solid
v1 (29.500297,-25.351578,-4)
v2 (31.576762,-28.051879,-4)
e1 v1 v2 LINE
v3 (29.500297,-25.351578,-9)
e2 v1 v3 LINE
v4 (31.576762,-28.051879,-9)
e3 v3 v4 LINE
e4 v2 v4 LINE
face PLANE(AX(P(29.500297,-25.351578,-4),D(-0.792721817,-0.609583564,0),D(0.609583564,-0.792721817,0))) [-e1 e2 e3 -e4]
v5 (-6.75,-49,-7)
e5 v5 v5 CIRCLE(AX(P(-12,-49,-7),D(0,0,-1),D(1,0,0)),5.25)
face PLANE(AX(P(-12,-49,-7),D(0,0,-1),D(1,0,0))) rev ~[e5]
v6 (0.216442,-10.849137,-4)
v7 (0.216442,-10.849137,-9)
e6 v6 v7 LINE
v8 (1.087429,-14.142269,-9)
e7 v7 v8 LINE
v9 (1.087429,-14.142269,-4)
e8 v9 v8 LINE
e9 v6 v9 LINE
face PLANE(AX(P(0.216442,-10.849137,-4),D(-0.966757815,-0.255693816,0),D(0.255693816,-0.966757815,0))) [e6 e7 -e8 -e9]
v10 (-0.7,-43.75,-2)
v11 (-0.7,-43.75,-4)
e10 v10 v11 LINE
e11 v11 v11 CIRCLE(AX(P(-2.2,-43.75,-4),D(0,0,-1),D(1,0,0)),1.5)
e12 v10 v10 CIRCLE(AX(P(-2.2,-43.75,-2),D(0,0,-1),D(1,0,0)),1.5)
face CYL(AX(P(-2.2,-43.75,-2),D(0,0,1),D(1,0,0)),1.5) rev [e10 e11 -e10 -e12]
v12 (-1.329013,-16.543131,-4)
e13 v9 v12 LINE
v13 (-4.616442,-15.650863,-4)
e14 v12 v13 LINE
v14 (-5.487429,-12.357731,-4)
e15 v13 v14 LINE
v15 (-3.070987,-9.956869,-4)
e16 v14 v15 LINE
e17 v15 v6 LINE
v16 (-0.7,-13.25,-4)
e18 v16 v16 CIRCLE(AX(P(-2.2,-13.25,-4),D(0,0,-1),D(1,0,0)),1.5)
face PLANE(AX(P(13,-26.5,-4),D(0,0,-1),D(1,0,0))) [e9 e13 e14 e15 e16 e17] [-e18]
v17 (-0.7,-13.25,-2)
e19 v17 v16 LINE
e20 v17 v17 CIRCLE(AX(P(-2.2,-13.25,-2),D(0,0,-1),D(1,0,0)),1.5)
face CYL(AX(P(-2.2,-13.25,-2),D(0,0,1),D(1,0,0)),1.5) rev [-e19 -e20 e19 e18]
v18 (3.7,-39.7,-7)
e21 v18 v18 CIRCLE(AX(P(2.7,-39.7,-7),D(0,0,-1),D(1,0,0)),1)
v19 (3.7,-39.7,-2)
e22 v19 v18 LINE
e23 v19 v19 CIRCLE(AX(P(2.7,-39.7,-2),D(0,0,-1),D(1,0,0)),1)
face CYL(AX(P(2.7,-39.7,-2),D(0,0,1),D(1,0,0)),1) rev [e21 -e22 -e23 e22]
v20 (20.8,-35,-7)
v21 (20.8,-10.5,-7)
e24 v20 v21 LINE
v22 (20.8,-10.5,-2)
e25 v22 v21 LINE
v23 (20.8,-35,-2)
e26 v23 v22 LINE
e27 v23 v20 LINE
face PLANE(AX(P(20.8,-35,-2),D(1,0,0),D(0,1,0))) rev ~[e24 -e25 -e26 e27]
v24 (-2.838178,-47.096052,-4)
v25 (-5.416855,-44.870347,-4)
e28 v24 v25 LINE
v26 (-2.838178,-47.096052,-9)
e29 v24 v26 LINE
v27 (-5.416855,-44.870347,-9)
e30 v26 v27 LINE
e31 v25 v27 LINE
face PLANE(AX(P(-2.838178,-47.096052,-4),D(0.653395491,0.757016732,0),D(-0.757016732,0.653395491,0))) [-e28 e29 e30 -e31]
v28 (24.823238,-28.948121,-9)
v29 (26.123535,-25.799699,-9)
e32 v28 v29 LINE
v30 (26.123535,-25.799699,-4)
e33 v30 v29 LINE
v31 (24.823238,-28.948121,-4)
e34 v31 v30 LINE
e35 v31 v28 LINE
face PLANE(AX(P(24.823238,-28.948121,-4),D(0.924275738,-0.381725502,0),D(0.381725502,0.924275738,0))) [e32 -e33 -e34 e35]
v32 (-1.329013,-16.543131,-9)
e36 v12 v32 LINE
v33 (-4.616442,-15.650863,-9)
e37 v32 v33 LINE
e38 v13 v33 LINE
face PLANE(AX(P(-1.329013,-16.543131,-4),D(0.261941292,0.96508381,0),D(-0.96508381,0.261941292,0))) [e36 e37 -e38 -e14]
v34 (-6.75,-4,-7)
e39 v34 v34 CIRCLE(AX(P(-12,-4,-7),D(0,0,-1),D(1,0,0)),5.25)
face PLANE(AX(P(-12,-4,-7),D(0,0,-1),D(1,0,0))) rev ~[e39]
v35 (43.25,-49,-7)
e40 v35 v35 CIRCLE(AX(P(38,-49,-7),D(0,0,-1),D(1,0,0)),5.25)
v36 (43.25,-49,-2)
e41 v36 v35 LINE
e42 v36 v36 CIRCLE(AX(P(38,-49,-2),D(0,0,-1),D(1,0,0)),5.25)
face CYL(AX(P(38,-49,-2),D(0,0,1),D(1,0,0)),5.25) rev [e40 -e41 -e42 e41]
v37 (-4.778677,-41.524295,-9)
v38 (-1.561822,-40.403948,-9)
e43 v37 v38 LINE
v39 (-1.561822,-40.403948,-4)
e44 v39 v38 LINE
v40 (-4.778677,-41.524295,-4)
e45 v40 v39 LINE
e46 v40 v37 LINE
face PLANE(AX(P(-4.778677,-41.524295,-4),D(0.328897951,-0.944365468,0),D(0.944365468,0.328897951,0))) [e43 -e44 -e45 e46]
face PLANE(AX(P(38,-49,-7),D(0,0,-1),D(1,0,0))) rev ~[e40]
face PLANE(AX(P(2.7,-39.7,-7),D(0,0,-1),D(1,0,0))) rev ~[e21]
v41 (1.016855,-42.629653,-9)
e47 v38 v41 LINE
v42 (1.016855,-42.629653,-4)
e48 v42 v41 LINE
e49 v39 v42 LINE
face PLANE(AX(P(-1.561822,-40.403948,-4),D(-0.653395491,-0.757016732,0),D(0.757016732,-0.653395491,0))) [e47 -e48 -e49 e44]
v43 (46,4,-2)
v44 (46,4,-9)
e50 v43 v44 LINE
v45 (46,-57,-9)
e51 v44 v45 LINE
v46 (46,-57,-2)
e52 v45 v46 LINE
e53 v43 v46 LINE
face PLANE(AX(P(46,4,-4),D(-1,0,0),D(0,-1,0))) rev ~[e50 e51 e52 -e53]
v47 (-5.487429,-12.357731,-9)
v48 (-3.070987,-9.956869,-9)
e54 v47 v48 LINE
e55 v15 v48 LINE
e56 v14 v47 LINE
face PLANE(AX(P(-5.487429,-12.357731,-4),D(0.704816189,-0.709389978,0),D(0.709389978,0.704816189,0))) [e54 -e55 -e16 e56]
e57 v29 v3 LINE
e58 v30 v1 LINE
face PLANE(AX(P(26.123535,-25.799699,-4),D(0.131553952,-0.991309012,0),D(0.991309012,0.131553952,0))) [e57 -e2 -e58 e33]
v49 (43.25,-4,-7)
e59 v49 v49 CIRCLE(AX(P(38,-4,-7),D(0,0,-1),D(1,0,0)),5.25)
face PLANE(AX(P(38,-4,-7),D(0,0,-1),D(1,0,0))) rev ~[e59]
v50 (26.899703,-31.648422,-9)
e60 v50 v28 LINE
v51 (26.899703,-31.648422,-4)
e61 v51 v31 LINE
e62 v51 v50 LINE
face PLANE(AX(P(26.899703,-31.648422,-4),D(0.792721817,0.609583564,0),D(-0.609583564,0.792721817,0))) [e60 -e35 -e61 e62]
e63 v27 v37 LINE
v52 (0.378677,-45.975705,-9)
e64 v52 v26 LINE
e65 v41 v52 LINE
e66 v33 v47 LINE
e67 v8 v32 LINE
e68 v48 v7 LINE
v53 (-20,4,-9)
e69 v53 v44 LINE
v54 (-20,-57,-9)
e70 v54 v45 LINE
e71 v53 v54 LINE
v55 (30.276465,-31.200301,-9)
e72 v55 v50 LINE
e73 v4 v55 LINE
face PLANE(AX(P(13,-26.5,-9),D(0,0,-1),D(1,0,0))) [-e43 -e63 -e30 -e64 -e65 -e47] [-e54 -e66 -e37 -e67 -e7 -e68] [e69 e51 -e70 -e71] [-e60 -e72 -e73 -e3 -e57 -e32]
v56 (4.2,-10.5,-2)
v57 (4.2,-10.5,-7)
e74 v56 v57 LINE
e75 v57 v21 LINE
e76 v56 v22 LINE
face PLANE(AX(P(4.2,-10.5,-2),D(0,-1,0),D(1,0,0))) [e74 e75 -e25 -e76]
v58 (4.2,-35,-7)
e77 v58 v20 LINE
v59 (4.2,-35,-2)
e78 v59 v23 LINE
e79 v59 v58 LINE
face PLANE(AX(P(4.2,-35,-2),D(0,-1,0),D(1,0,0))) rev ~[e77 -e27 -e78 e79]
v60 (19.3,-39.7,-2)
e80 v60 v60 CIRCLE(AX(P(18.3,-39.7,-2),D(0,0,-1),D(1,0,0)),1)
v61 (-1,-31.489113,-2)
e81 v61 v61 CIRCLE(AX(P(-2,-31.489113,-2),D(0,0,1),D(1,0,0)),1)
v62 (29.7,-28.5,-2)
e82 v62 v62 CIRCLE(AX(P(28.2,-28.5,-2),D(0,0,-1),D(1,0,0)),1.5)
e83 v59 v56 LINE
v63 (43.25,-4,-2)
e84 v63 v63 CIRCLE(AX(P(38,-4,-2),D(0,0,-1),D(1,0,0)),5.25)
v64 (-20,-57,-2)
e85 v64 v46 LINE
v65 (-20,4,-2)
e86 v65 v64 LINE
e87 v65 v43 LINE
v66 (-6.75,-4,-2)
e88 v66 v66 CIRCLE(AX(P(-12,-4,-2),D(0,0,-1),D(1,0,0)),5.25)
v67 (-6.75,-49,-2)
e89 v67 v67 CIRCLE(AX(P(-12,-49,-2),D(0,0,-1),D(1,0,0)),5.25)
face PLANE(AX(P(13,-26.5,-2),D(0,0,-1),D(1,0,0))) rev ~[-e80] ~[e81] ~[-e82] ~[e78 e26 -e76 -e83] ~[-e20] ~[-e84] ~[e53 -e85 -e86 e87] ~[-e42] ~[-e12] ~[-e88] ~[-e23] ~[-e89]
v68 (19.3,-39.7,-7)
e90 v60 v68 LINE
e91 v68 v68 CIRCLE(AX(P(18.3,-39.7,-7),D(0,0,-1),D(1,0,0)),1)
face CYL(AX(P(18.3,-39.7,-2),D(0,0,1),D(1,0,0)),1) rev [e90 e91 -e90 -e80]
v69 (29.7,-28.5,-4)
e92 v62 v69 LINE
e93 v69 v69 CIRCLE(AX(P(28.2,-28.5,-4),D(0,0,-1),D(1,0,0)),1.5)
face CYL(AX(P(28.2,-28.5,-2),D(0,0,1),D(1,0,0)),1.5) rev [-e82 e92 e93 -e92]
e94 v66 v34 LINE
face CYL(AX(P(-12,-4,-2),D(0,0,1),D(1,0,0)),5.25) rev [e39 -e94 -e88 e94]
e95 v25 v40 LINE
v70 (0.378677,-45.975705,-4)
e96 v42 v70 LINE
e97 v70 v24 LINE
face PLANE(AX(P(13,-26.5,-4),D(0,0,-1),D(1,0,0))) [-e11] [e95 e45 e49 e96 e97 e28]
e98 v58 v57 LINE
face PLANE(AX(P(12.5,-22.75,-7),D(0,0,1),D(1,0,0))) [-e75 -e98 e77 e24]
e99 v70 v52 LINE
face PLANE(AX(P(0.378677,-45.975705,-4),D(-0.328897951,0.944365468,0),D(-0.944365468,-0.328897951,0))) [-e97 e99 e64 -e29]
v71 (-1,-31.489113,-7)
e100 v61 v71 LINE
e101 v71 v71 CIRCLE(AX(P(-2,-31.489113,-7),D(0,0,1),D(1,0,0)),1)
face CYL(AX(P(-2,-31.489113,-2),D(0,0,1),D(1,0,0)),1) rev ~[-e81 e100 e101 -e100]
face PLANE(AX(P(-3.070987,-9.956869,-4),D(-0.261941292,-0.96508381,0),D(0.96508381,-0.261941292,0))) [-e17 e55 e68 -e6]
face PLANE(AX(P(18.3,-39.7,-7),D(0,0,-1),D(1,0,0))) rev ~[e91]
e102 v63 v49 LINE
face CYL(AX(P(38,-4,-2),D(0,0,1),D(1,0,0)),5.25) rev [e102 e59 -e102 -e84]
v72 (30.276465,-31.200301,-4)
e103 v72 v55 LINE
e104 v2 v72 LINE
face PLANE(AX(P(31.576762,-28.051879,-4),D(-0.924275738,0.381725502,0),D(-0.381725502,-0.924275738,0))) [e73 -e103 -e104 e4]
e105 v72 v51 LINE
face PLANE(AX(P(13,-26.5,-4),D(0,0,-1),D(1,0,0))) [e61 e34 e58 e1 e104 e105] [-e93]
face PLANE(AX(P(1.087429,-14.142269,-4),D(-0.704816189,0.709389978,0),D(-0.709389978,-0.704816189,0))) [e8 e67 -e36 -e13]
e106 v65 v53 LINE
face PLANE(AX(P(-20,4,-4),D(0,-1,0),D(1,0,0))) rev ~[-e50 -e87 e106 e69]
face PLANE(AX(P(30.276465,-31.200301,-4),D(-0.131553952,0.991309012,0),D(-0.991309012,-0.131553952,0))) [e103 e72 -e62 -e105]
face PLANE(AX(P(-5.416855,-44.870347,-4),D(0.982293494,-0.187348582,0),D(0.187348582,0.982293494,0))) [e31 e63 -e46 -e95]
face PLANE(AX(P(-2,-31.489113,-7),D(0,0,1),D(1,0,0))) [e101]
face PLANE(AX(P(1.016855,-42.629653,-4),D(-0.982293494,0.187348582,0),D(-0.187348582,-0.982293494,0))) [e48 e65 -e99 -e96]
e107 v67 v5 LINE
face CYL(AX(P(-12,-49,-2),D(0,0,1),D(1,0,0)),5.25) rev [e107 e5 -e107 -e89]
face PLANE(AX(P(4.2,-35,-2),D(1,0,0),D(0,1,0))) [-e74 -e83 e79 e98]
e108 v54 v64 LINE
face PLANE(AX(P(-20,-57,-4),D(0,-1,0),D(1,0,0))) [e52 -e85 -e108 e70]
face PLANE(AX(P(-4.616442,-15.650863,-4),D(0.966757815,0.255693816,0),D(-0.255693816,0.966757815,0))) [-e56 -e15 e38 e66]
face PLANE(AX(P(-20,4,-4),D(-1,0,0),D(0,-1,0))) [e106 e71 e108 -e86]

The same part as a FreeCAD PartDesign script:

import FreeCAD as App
import Part
import Sketcher
from FreeCAD import Vector


def add_polygon(sketch, points):
    """Adds a closed chain of lines whose ends are joined by coincident constraints."""
    first, n = sketch.GeometryCount, len(points)
    for a, b in zip(points, points[1:] + points[:1]):
        sketch.addGeometry(Part.LineSegment(App.Vector(*a, 0), App.Vector(*b, 0)), False)
    for i in range(n):
        sketch.addConstraint(Sketcher.Constraint("Coincident", first + i, 2, first + (i + 1) % n, 1))

doc = App.newDocument("Part")
body = doc.addObject("PartDesign::Body", "Body")

sketch1 = body.newObject("Sketcher::SketchObject", "Sketch")
sketch1.AttachmentSupport = (doc.getObject("XY_Plane"), [""])
sketch1.MapMode = "FlatFace"
sketch1.AttachmentOffset = App.Placement(Vector(0, 0, -2), App.Rotation())
add_polygon(sketch1, [(-20, -57), (-20, 4), (46, 4), (46, -57)])
sketch1.addGeometry(Part.Circle(Vector(-12, -4, 0), Vector(0, 0, 1), 5.2), False)
sketch1.addGeometry(Part.Circle(Vector(-2.2, -13.2, 0), Vector(0, 0, 1), 1.5), False)
sketch1.addGeometry(Part.Circle(Vector(38, -4, 0), Vector(0, 0, 1), 5.2), False)
sketch1.addGeometry(Part.Circle(Vector(2.7, -39.7, 0), Vector(0, 0, 1), 1), False)
sketch1.addGeometry(Part.Circle(Vector(-2.2, -43.8, 0), Vector(0, 0, 1), 1.5), False)
sketch1.addGeometry(Part.Circle(Vector(-12, -49, 0), Vector(0, 0, 1), 5.2), False)
sketch1.addGeometry(Part.Circle(Vector(18.3, -39.7, 0), Vector(0, 0, 1), 1), False)
sketch1.addGeometry(Part.Circle(Vector(28.2, -28.5, 0), Vector(0, 0, 1), 1.5), False)
sketch1.addGeometry(Part.Circle(Vector(38, -49, 0), Vector(0, 0, 1), 5.2), False)
sketch1.addConstraint([
    Sketcher.Constraint("Vertical", 0),
    Sketcher.Constraint("Horizontal", 1),
    Sketcher.Constraint("Vertical", 2),
    Sketcher.Constraint("Horizontal", 3),
    Sketcher.Constraint("Equal", 4, 6),
    Sketcher.Constraint("Equal", 5, 8),
    Sketcher.Constraint("Equal", 6, 9),
    Sketcher.Constraint("Equal", 7, 10),
    Sketcher.Constraint("Equal", 8, 11),
    Sketcher.Constraint("Equal", 9, 12),
    Sketcher.Constraint("Horizontal", 4, 3, 6, 3),
    Sketcher.Constraint("Horizontal", 7, 3, 10, 3),
    Sketcher.Constraint("Horizontal", 9, 3, 12, 3),
    Sketcher.Constraint("Vertical", 5, 3, 8, 3),
    Sketcher.Constraint("Vertical", 4, 3, 9, 3),
    Sketcher.Constraint("Vertical", 6, 3, 12, 3),
    Sketcher.Constraint("Diameter", 5, 3.0),
    Sketcher.Constraint("Diameter", 7, 2.0),
    Sketcher.Constraint("Diameter", 4, 10.5),
    Sketcher.Constraint("DistanceX", 1, 1, 1, 2, 66.0),
    Sketcher.Constraint("DistanceY", 0, 1, 0, 2, 61.0),
    Sketcher.Constraint("DistanceX", 4, 3, -1, 1, 12.0),
    Sketcher.Constraint("DistanceY", 4, 3, -1, 1, 4.0),
    Sketcher.Constraint("DistanceX", -1, 1, 6, 3, 38.0),
    Sketcher.Constraint("DistanceY", 9, 3, -1, 1, 49.0),
    Sketcher.Constraint("DistanceX", 0, 2, -1, 1, 20.0),
    Sketcher.Constraint("DistanceY", -1, 1, 0, 2, 4.0),
    Sketcher.Constraint("DistanceX", 5, 3, -1, 1, 2.2),
    Sketcher.Constraint("DistanceX", -1, 1, 7, 3, 2.7),
    Sketcher.Constraint("DistanceY", 7, 3, -1, 1, 39.7),
    Sketcher.Constraint("DistanceX", -1, 1, 10, 3, 18.3),
    Sketcher.Constraint("DistanceX", -1, 1, 11, 3, 28.2),
    Sketcher.Constraint("DistanceY", 11, 3, -1, 1, 28.5),
    Sketcher.Constraint("DistanceY", 8, 3, 5, 3, 30.5),
    Sketcher.Constraint("DistanceY", 5, 3, -1, 1, 13.25),
])
pad1 = body.newObject("PartDesign::Pad", "Pad")
pad1.Profile = sketch1
pad1.Length = 2
pad1.Reversed = True

sketch2 = body.newObject("Sketcher::SketchObject", "Sketch001")
sketch2.AttachmentSupport = (doc.getObject("XY_Plane"), [""])
sketch2.MapMode = "FlatFace"
sketch2.AttachmentOffset = App.Placement(Vector(0, 0, -4), App.Rotation())
add_polygon(sketch2, [(-20, -57), (-20, 4), (46, 4), (46, -57)])
add_polygon(sketch2, [(-1.3, -16.5), (1.1, -14.1), (0.2, -10.8), (-3.1, -10), (-5.5, -12.4), (-4.6, -15.7)])
add_polygon(sketch2, [(31.6, -28.1), (29.5, -25.4), (26.1, -25.8), (24.8, -28.9), (26.9, -31.6), (30.3, -31.2)])
add_polygon(sketch2, [(-5.4, -44.9), (-2.8, -47.1), (0.4, -46), (1, -42.6), (-1.6, -40.4), (-4.8, -41.5)])
sketch2.addConstraint([
    Sketcher.Constraint("Vertical", 0),
    Sketcher.Constraint("Horizontal", 1),
    Sketcher.Constraint("Vertical", 2),
    Sketcher.Constraint("Horizontal", 3),
    Sketcher.Constraint("Parallel", 4, 7),
    Sketcher.Constraint("Parallel", 5, 8),
    Sketcher.Constraint("Parallel", 6, 9),
    Sketcher.Constraint("Parallel", 10, 13),
    Sketcher.Constraint("Parallel", 11, 14),
    Sketcher.Constraint("Parallel", 12, 15),
    Sketcher.Constraint("Parallel", 16, 19),
    Sketcher.Constraint("Parallel", 17, 20),
    Sketcher.Constraint("Parallel", 18, 21),
    Sketcher.Constraint("Equal", 4, 5),
    Sketcher.Constraint("Equal", 5, 6),
    Sketcher.Constraint("Equal", 6, 7),
    Sketcher.Constraint("Equal", 9, 10),
    Sketcher.Constraint("Equal", 10, 11),
    Sketcher.Constraint("Equal", 11, 12),
    Sketcher.Constraint("Equal", 12, 13),
    Sketcher.Constraint("Equal", 15, 16),
    Sketcher.Constraint("Equal", 16, 17),
    Sketcher.Constraint("Equal", 17, 18),
    Sketcher.Constraint("Equal", 18, 19),
    Sketcher.Constraint("DistanceX", 1, 1, 1, 2, 66.0),
    Sketcher.Constraint("DistanceY", 0, 1, 0, 2, 61.0),
    Sketcher.Constraint("DistanceX", 0, 2, -1, 1, 20.0),
    Sketcher.Constraint("DistanceY", -1, 1, 0, 2, 4.0),
    Sketcher.Constraint("DistanceY", 11, 2, -1, 1, 25.799699),
    Sketcher.Constraint("DistanceY", 14, 2, -1, 1, 31.200301),
    Sketcher.Constraint("DistanceY", 4, 2, 6, 2, 4.1854),
    Sketcher.Constraint("DistanceY", 13, 2, 12, 2, 2.700301),
    Sketcher.Constraint("DistanceY", 16, 2, 18, 2, 4.466399),
    Sketcher.Constraint("DistanceX", 19, 2, 17, 2, 1.940499),
    Sketcher.Constraint("DistanceX", -1, 1, 4, 2, 1.087429),
    Sketcher.Constraint("DistanceY", 4, 2, -1, 1, 14.142269),
    Sketcher.Constraint("DistanceX", 7, 2, -1, 1, 5.487429),
    Sketcher.Constraint("DistanceY", 7, 2, -1, 1, 12.357731),
    Sketcher.Constraint("DistanceY", 10, 2, -1, 1, 25.351578),
    Sketcher.Constraint("DistanceX", -1, 1, 12, 2, 24.823238),
    Sketcher.Constraint("DistanceX", -1, 1, 15, 2, 31.576762),
    Sketcher.Constraint("DistanceX", 16, 2, -1, 1, 2.838178),
    Sketcher.Constraint("DistanceY", 16, 2, 9, 2, 30.552921),
    Sketcher.Constraint("DistanceX", 9, 2, 17, 2, 1.70769),
])
pad2 = body.newObject("PartDesign::Pad", "Pad001")
pad2.Profile = sketch2
pad2.Length = 5
pad2.Reversed = True

sketch3 = body.newObject("Sketcher::SketchObject", "Sketch002")
sketch3.AttachmentSupport = (doc.getObject("XY_Plane"), [""])
sketch3.MapMode = "FlatFace"
sketch3.AttachmentOffset = App.Placement(Vector(0, 0, -4), App.Rotation())
sketch3.addGeometry([
    Part.Circle(Vector(-12, -4, 0), Vector(0, 0, 1), 5.2),
    Part.Circle(Vector(-12, -49, 0), Vector(0, 0, 1), 5.2),
    Part.Circle(Vector(38, -49, 0), Vector(0, 0, 1), 5.2),
    Part.Circle(Vector(38, -4, 0), Vector(0, 0, 1), 5.2),
    Part.Circle(Vector(2.7, -39.7, 0), Vector(0, 0, 1), 1),
    Part.Circle(Vector(18.3, -39.7, 0), Vector(0, 0, 1), 1),
], False)
sketch3.addConstraint([
    Sketcher.Constraint("Equal", 0, 1),
    Sketcher.Constraint("Equal", 1, 2),
    Sketcher.Constraint("Equal", 2, 3),
    Sketcher.Constraint("Equal", 4, 5),
    Sketcher.Constraint("Horizontal", 1, 3, 2, 3),
    Sketcher.Constraint("Horizontal", 0, 3, 3, 3),
    Sketcher.Constraint("Horizontal", 4, 3, 5, 3),
    Sketcher.Constraint("Vertical", 0, 3, 1, 3),
    Sketcher.Constraint("Vertical", 2, 3, 3, 3),
    Sketcher.Constraint("Diameter", 4, 2.0),
    Sketcher.Constraint("Diameter", 0, 10.5),
    Sketcher.Constraint("DistanceX", 0, 3, -1, 1, 12.0),
    Sketcher.Constraint("DistanceY", 0, 3, -1, 1, 4.0),
    Sketcher.Constraint("DistanceY", 1, 3, -1, 1, 49.0),
    Sketcher.Constraint("DistanceX", -1, 1, 2, 3, 38.0),
    Sketcher.Constraint("DistanceX", -1, 1, 4, 3, 2.7),
    Sketcher.Constraint("DistanceY", 4, 3, -1, 1, 39.7),
    Sketcher.Constraint("DistanceX", -1, 1, 5, 3, 18.3),
])
pocket1 = body.newObject("PartDesign::Pocket", "Pocket")
pocket1.Profile = sketch3
pocket1.Length = 3

sketch4 = body.newObject("Sketcher::SketchObject", "Sketch003")
sketch4.AttachmentSupport = (doc.getObject("XY_Plane"), [""])
sketch4.MapMode = "FlatFace"
sketch4.AttachmentOffset = App.Placement(Vector(0, 0, -2), App.Rotation())
add_polygon(sketch4, [(4, -10), (4, -35), (21, -35), (21, -10)])
sketch4.addConstraint([
    Sketcher.Constraint("Vertical", 0),
    Sketcher.Constraint("Horizontal", 1),
    Sketcher.Constraint("Vertical", 2),
    Sketcher.Constraint("Horizontal", 3),
    Sketcher.Constraint("DistanceX", 1, 1, 1, 2, 16.6),
    Sketcher.Constraint("DistanceY", 0, 2, 0, 1, 24.5),
    Sketcher.Constraint("DistanceY", 0, 2, -1, 1, 35.0),
    Sketcher.Constraint("DistanceX", -1, 1, 0, 2, 4.2),
])
pocket2 = body.newObject("PartDesign::Pocket", "Pocket001")
pocket2.Profile = sketch4
pocket2.Length = 5

sketch5 = body.newObject("Sketcher::SketchObject", "Sketch004")
sketch5.AttachmentSupport = (doc.getObject("XY_Plane"), [""])
sketch5.MapMode = "FlatFace"
sketch5.AttachmentOffset = App.Placement(Vector(0, 0, -2), App.Rotation())
sketch5.addGeometry(Part.Circle(Vector(-2, -31.5, 0), Vector(0, 0, 1), 1), False)
sketch5.addConstraint([
    Sketcher.Constraint("Diameter", 0, 2.0),
    Sketcher.Constraint("DistanceX", 0, 3, -1, 1, 2.0),
    Sketcher.Constraint("DistanceY", 0, 3, -1, 1, 31.489113),
])
pocket3 = body.newObject("PartDesign::Pocket", "Pocket002")
pocket3.Profile = sketch5
pocket3.Length = 5

doc.recompute()
